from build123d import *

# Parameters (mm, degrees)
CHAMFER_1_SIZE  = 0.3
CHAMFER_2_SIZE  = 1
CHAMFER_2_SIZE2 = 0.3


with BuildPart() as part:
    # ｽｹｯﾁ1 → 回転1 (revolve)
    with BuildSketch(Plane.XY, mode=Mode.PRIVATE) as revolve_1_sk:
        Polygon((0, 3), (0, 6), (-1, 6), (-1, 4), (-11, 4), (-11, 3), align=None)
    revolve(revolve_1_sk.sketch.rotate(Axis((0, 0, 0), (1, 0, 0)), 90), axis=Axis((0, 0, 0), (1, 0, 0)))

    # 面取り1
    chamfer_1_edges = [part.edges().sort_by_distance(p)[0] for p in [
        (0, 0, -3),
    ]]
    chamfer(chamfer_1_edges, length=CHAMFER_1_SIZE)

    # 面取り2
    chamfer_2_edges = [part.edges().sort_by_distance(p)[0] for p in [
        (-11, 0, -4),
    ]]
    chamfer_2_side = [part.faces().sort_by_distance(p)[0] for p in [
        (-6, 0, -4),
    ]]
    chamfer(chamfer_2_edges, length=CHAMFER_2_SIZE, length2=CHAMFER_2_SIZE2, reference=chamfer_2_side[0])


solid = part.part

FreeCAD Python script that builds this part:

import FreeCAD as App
import Part
import Sketcher


def edges_at(feature, points):
    """Names of the edges that pass closest to the given points."""
    edges = feature.Shape.Edges
    near = lambda p: min(range(len(edges)), key=lambda i: edges[i].distToShape(Part.Vertex(*p))[0])
    return sorted({f"Edge{near(p) + 1}" for p in points})

doc = App.newDocument("Part")
params = doc.addObject("Spreadsheet::Sheet", "Params")
for row, (alias, value) in enumerate([
    ("sketch1_width", "1 mm"),
    ("sketch1_width2", "10 mm"),
    ("sketch1_height", "3 mm"),
    ("revolution_angle", "360 deg"),
    ("chamfer_size", "0.3 mm"),
    ("chamfer2_size", "1 mm"),
    ("chamfer2_size2", "0.3 mm"),
], start=1):
    params.set(f"A{row}", alias)
    params.set(f"B{row}", "=" + value)
    params.setAlias(f"B{row}", alias)

body = doc.addObject("PartDesign::Body", "Body")

# Sketch on XY plane
sketch1 = body.newObject("Sketcher::SketchObject", "Sketch")
sketch1.AttachmentSupport = (doc.getObject("XY_Plane"), [""])
sketch1.MapMode = "FlatFace"
sketch1.addGeometry(Part.LineSegment(App.Vector(0, 3, 0), App.Vector(0, 6, 0)), False)
sketch1.addGeometry(Part.LineSegment(App.Vector(0, 6, 0), App.Vector(-1, 6, 0)), False)
sketch1.addGeometry(Part.LineSegment(App.Vector(-1, 6, 0), App.Vector(-1, 4, 0)), False)
sketch1.addGeometry(Part.LineSegment(App.Vector(-1, 4, 0), App.Vector(-11, 4, 0)), False)
sketch1.addGeometry(Part.LineSegment(App.Vector(-11, 4, 0), App.Vector(-11, 3, 0)), False)
sketch1.addGeometry(Part.LineSegment(App.Vector(-11, 3, 0), App.Vector(0, 3, 0)), False)
sketch1.addConstraint(Sketcher.Constraint("Coincident", 0, 2, 1, 1))
sketch1.addConstraint(Sketcher.Constraint("Coincident", 1, 2, 2, 1))
sketch1.addConstraint(Sketcher.Constraint("Coincident", 2, 2, 3, 1))
sketch1.addConstraint(Sketcher.Constraint("Coincident", 3, 2, 4, 1))
sketch1.addConstraint(Sketcher.Constraint("Coincident", 4, 2, 5, 1))
sketch1.addConstraint(Sketcher.Constraint("Coincident", 5, 2, 0, 1))
sketch1.addConstraint(Sketcher.Constraint("Vertical", 0))
sketch1.addConstraint(Sketcher.Constraint("Horizontal", 1))
sketch1.addConstraint(Sketcher.Constraint("Vertical", 2))
sketch1.addConstraint(Sketcher.Constraint("Horizontal", 3))
sketch1.addConstraint(Sketcher.Constraint("Vertical", 4))
sketch1.addConstraint(Sketcher.Constraint("Horizontal", 5))
sketch1.addConstraint(Sketcher.Constraint("PointOnObject", 0, 2, -2))
sketch1.addConstraint(Sketcher.Constraint("Equal", 1, 4))
sketch1.addConstraint(Sketcher.Constraint("DistanceX", 1, 2, 1, 1, 1.0))
sketch1.addConstraint(Sketcher.Constraint("DistanceX", 3, 2, 3, 1, 10.0))
sketch1.addConstraint(Sketcher.Constraint("DistanceY", 0, 1, 0, 2, 3.0))
sketch1.addConstraint(Sketcher.Constraint("DistanceY", -1, 1, 0, 2, 6.0))
sketch1.setExpression("Constraints[14]", "Params.sketch1_width")
sketch1.setExpression("Constraints[15]", "Params.sketch1_width2")
sketch1.setExpression("Constraints[16]", "Params.sketch1_height")
revolution = body.newObject("PartDesign::Revolution", "Revolution")
revolution.Profile = sketch1
revolution.ReferenceAxis = (sketch1, ["H_Axis"])
revolution.setExpression("Angle", "Params.revolution_angle")
doc.recompute()

chamfer = body.newObject("PartDesign::Chamfer", "Chamfer")
chamfer.Base = (revolution, edges_at(revolution, [(0, 0, -3)]))
chamfer.setExpression("Size", "Params.chamfer_size")
doc.recompute()

chamfer2 = body.newObject("PartDesign::Chamfer", "Chamfer001")
chamfer2.Base = (chamfer, edges_at(chamfer, [(-11, 0, -4)]))
chamfer2.ChamferType = "Two distances"
chamfer2.setExpression("Size", "Params.chamfer2_size")
chamfer2.setExpression("Size2", "Params.chamfer2_size2")
chamfer2.FlipDirection = True

doc.recompute()
